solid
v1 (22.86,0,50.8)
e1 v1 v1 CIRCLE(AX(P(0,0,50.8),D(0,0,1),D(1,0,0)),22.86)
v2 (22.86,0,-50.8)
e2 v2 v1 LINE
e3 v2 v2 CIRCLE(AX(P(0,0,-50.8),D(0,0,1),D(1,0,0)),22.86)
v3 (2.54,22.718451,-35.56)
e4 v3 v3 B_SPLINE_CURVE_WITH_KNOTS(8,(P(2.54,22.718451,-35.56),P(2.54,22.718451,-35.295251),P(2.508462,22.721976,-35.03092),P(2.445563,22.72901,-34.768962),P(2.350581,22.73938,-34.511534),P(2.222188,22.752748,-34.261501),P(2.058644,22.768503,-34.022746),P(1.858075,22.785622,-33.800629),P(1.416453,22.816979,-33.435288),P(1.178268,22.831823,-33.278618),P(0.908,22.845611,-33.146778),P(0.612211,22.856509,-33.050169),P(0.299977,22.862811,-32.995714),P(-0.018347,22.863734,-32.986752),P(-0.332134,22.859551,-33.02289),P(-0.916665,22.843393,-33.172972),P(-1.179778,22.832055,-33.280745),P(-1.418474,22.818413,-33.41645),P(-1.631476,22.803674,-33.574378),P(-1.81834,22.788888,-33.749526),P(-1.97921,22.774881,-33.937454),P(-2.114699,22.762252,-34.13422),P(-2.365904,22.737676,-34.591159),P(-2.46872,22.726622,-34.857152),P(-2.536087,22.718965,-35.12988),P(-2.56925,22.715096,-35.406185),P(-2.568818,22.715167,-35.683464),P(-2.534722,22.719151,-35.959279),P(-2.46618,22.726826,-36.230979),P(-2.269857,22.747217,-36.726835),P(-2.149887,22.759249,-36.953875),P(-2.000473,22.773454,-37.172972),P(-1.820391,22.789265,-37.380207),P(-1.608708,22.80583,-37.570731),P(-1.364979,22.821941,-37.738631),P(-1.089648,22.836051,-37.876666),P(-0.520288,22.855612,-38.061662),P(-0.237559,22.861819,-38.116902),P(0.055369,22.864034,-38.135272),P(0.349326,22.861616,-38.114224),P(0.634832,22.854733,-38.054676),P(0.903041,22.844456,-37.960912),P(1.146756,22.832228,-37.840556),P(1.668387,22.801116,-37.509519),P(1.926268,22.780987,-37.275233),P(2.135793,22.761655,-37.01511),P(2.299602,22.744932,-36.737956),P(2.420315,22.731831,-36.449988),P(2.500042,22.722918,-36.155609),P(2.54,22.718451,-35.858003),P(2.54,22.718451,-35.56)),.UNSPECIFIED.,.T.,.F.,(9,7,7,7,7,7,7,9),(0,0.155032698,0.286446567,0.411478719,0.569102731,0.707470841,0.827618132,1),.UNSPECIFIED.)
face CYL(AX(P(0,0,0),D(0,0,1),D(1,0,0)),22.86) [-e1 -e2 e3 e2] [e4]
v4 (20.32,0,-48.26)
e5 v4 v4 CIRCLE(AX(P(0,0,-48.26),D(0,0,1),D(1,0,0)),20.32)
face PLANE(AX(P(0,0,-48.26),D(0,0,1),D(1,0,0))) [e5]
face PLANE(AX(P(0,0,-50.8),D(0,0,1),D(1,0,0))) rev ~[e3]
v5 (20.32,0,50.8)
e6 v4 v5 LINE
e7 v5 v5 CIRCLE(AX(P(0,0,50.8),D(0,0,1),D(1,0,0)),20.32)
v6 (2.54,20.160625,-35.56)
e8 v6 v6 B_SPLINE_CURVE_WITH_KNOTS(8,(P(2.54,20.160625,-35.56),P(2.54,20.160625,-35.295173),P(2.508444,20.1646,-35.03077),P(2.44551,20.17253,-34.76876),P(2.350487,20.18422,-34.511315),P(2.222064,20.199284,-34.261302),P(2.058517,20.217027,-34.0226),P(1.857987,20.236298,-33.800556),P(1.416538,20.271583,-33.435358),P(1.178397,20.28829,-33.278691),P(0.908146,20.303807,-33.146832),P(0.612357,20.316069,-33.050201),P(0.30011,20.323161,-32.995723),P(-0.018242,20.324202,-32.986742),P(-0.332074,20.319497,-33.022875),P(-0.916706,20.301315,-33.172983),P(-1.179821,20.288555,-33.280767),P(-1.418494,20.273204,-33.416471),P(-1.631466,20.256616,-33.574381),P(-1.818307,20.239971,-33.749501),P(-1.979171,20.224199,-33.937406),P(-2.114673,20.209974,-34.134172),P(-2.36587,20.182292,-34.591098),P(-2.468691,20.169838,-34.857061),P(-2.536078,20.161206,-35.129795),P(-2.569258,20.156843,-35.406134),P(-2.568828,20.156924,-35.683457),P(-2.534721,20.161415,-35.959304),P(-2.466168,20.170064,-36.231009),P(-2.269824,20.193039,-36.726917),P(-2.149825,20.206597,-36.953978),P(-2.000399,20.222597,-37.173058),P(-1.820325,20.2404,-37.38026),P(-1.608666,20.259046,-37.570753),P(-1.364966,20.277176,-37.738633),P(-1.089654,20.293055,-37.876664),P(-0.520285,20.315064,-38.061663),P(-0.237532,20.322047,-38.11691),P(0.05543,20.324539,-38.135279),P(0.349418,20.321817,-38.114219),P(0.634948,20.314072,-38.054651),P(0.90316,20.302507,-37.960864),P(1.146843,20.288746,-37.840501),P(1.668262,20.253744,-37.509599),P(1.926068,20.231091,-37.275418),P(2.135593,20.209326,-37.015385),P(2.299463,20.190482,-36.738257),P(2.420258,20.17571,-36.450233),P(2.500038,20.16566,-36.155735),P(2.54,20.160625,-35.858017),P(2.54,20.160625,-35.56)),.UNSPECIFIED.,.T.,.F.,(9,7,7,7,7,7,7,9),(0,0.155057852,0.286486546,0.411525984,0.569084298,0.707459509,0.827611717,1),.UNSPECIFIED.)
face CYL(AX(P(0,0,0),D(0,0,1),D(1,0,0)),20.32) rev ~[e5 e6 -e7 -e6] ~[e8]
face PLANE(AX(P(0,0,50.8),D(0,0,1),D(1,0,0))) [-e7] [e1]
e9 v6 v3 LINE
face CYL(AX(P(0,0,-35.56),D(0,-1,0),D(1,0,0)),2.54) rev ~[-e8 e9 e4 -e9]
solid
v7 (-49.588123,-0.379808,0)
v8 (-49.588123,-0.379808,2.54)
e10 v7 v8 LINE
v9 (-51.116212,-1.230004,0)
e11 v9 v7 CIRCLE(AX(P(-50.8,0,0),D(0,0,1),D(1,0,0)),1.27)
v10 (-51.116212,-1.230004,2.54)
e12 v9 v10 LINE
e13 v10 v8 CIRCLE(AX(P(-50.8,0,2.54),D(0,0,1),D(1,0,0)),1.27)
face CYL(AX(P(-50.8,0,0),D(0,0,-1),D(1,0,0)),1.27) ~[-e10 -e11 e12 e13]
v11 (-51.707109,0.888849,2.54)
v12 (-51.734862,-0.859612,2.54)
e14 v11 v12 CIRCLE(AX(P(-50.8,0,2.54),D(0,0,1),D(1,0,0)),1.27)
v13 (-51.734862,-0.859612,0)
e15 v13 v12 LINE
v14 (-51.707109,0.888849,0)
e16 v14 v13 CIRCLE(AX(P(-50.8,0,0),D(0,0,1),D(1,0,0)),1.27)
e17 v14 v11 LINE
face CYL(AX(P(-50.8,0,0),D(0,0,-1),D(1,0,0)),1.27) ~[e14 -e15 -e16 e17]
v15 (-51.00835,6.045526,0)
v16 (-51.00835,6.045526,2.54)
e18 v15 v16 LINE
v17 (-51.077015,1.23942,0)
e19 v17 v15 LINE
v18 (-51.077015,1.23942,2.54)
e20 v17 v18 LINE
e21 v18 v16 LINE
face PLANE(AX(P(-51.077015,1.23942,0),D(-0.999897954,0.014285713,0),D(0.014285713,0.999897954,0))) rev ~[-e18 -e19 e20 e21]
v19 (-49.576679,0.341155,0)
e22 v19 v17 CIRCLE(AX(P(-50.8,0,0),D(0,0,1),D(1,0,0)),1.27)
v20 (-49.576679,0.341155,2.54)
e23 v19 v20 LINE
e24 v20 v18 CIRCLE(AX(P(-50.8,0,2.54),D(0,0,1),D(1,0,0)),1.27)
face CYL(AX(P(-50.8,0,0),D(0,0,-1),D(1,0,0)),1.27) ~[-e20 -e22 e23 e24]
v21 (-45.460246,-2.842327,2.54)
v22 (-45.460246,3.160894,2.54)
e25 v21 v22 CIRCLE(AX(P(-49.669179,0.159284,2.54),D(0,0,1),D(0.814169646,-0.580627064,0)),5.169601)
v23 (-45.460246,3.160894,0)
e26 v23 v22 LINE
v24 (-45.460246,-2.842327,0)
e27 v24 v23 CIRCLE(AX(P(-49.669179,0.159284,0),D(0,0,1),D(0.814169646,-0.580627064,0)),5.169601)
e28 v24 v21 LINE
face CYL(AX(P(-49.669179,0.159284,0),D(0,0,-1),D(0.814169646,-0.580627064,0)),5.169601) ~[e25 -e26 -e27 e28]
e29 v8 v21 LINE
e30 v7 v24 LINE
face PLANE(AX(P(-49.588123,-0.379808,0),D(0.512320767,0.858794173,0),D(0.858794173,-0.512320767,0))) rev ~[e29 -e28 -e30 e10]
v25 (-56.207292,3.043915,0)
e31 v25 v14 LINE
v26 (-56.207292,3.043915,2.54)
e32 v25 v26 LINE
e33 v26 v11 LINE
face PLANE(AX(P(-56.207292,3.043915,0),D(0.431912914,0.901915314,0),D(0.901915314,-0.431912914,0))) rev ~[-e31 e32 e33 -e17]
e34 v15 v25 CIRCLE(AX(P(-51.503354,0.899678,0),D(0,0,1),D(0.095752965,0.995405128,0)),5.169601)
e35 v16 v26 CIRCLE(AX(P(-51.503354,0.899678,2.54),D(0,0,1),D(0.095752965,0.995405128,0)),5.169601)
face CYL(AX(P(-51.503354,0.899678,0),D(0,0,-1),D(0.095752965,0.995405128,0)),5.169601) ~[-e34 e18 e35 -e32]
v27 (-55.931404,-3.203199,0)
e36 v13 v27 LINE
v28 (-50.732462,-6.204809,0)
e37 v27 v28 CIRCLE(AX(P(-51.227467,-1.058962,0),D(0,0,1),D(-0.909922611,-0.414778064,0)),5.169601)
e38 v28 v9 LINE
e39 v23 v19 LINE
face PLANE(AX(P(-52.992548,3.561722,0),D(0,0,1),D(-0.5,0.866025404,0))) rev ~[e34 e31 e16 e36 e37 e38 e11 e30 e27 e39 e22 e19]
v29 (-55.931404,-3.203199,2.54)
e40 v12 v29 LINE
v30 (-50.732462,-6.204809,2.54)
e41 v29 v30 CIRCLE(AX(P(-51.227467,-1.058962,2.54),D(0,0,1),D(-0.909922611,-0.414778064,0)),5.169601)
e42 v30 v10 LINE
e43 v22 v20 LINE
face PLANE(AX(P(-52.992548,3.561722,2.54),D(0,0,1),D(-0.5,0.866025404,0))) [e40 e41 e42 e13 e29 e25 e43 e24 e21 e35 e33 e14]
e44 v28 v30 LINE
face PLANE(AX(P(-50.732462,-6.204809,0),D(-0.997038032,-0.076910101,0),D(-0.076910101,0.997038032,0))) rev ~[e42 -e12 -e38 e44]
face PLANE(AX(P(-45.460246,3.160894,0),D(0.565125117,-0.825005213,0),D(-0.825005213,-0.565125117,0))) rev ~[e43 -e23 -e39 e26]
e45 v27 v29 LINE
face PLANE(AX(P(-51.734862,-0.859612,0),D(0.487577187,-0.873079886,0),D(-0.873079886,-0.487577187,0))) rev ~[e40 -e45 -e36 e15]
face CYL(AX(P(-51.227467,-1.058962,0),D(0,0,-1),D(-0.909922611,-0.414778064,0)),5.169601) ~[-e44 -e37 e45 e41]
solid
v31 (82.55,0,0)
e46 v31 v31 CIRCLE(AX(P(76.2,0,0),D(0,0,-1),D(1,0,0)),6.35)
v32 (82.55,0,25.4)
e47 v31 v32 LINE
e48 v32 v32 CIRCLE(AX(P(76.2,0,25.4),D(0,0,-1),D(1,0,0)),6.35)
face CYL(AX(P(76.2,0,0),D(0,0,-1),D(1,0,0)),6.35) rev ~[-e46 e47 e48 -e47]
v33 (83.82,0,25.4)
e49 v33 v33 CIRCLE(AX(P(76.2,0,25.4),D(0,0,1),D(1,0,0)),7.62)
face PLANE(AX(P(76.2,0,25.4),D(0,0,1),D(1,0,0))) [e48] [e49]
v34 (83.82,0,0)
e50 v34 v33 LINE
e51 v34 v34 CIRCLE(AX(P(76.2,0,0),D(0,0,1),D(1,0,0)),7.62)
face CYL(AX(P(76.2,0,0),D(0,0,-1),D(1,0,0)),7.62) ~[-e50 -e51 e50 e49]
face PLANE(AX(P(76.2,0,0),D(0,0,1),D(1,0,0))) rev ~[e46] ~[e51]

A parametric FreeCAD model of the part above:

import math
import FreeCAD as App
import Part
import Sketcher

V = App.Vector
Q = App.Units.Quantity


def faces_at(feature, points):
    """Names of the faces that lie closest to the given points."""
    faces = feature.Shape.Faces
    near = lambda p: min(range(len(faces)), key=lambda i: faces[i].distToShape(Part.Vertex(*p))[0])
    return sorted({f"Face{near(p) + 1}" for p in points})

doc = App.newDocument("Part")
body = doc.addObject("PartDesign::Body", "Body")

# Sketch on XY plane
sketch1 = body.newObject("Sketcher::SketchObject", "Sketch")
sketch1.AttachmentSupport = (doc.getObject("XY_Plane"), [""])
sketch1.MapMode = "FlatFace"
sketch1.addGeometry(Part.Circle(V(0, 0, 0), V(0, 0, 1), 22.86), False)
sketch1.addConstraint([
    Sketcher.Constraint("Coincident", 0, 3, -1, 1),
    Sketcher.Constraint("Diameter", 0, Q("1.8 in")),
])
pad1 = body.newObject("PartDesign::Pad", "Pad")
pad1.Profile = sketch1
pad1.Length = Q("4 in")
pad1.Midplane = True
doc.recompute()

thickness = body.newObject("PartDesign::Thickness", "Thickness")
thickness.Base = (pad1, faces_at(pad1, [(0, 0, 50.8)]))
thickness.Value = Q("0.1 in")
thickness.Reversed = True
thickness.Join = "Arc"

# Sketch on XZ plane
sketch2 = body.newObject("Sketcher::SketchObject", "Sketch001")
sketch2.AttachmentSupport = (doc.getObject("XZ_Plane"), [""])
sketch2.MapMode = "FlatFace"
sketch2.addGeometry(Part.Circle(V(0, -35.56, 0), V(0, 0, 1), 2.54), False)
sketch2.addConstraint([
    Sketcher.Constraint("PointOnObject", 0, 3, -2),
    Sketcher.Constraint("Diameter", 0, Q("0.2 in")),
    Sketcher.Constraint("DistanceY", 0, 3, -1, 1, Q("1.4 in")),
])
pocket1 = body.newObject("PartDesign::Pocket", "Pocket")
pocket1.Profile = sketch2
pocket1.Length = 22.94505
body2 = doc.addObject("PartDesign::Body", "Body001")

# Sketch on XY plane
sketch3 = body2.newObject("Sketcher::SketchObject", "Sketch002")
sketch3.AttachmentSupport = (doc.getObject("XY_Plane001"), [""])
sketch3.MapMode = "FlatFace"
sketch3.addGeometry(Part.Circle(V(76.2, 0, 0), V(0, 0, 1), 7.62), False)
sketch3.addConstraint([
    Sketcher.Constraint("PointOnObject", 0, 3, -1),
    Sketcher.Constraint("Diameter", 0, Q("0.6 in")),
    Sketcher.Constraint("DistanceX", -1, 1, 0, 3, Q("3 in")),
])
pad2 = body2.newObject("PartDesign::Pad", "Pad001")
pad2.Profile = sketch3
pad2.Length = Q("1 in")

# Sketch on XY plane
sketch4 = body2.newObject("Sketcher::SketchObject", "Sketch003")
sketch4.AttachmentSupport = (doc.getObject("XY_Plane001"), [""])
sketch4.MapMode = "FlatFace"
sketch4.addGeometry(Part.Circle(V(76.2, 0, 0), V(0, 0, 1), 6.35), False)
sketch4.addConstraint([
    Sketcher.Constraint("PointOnObject", 0, 3, -1),
    Sketcher.Constraint("Diameter", 0, Q("0.5 in")),
    Sketcher.Constraint("DistanceX", -1, 1, 0, 3, Q("3 in")),
])
pocket2 = body2.newObject("PartDesign::Pocket", "Pocket001")
pocket2.Profile = sketch4
pocket2.Length = Q("1 in")
pocket2.Reversed = True
body3 = doc.addObject("PartDesign::Body", "Body002")

# Sketch on XY plane
sketch5 = body3.newObject("Sketcher::SketchObject", "Sketch004")
sketch5.AttachmentSupport = (doc.getObject("XY_Plane002"), [""])
sketch5.MapMode = "FlatFace"
sketch5.addGeometry(Part.Circle(V(-50.8, 0, 0), V(0, 0, 1), 1.27), False)
sketch5.addConstraint([
    Sketcher.Constraint("PointOnObject", 0, 3, -1),
    Sketcher.Constraint("Diameter", 0, Q("0.1 in")),
    Sketcher.Constraint("DistanceX", 0, 3, -1, 1, Q("2 in")),
])
pad3 = body3.newObject("PartDesign::Pad", "Pad002")
pad3.Profile = sketch5
pad3.Length = Q("0.1 in")

# Sketch on XY plane
sketch6 = body3.newObject("Sketcher::SketchObject", "Sketch005")
sketch6.AttachmentSupport = (doc.getObject("XY_Plane002"), [""])
sketch6.MapMode = "FlatFace"
sketch6.addGeometry([
    Part.ArcOfCircle(Part.Circle(V(-50.8, 0, 0), V(0, 0, 1), 1.27), math.radians(0), math.radians(15.58251)),  # 0
    Part.ArcOfCircle(Part.Circle(V(-50.8, 0, 0), V(0, 0, 1), 1.27), math.radians(-17.401233), math.radians(0)),  # 1
    Part.LineSegment(V(-49.588123, -0.379808, 0), V(-45.460246, -2.842327, 0)),  # 2
    Part.ArcOfCircle(Part.Circle(V(-49.669179, 0.159284, 0), V(0, 0, 1), 5.169601), math.radians(-35.494659), math.radians(35.494659)),  # 3
    Part.LineSegment(V(-45.460246, 3.160894, 0), V(-49.576679, 0.341155, 0)),  # 4
], False)
sketch6.addConstraint([
    Sketcher.Constraint("Tangent", 0, 1, 1, 2),
    Sketcher.Constraint("Coincident", 1, 1, 2, 1),
    Sketcher.Constraint("Coincident", 2, 2, 3, 1),
    Sketcher.Constraint("Coincident", 3, 2, 4, 1),
    Sketcher.Constraint("Coincident", 4, 2, 0, 2),
    Sketcher.Constraint("Equal", 0, 1),
    Sketcher.Constraint("PointOnObject", 0, 3, -1),
    Sketcher.Constraint("PointOnObject", 0, 1, -1),
    Sketcher.Constraint("Vertical", 2, 2, 3, 2),
    Sketcher.Constraint("Radius", 0, Q("0.05 in")),
    Sketcher.Constraint("DistanceX", 0, 3, -1, 1, Q("2 in")),
    Sketcher.Constraint("Radius", 3, 5.169601),
    Sketcher.Constraint("DistanceX", 3, 3, 4, 2, 0.0925),
    Sketcher.Constraint("DistanceX", 3, 3, -1, 1, 49.669179),
    Sketcher.Constraint("DistanceY", 1, 1, 3, 3, 0.539092),
    Sketcher.Constraint("DistanceY", 2, 2, 1, 1, 2.462519),
    Sketcher.Constraint("DistanceY", 3, 3, 4, 2, 0.181871),
])
pad4 = body3.newObject("PartDesign::Pad", "Pad003")
pad4.Profile = sketch6
pad4.Length = Q("0.1 in")
body4 = doc.addObject("PartDesign::Body", "Body003")
doc.recompute()

body4.BaseFeature = body3
doc.recompute()

body5 = doc.addObject("PartDesign::Body", "Body004")
body5.BaseFeature = body3
body5.Placement = App.Placement(V(-76.2, -43.994091, 0), App.Rotation(V(0, 0, -1), 120))
boolean = body4.newObject("PartDesign::Boolean", "Boolean")
boolean.Type = "Fuse"
boolean.addObjects([body5])
doc.recompute()

body3.Placement = App.Placement(V(-76.2, 43.994091, 0), App.Rotation(V(0, 0, -1), 240))
boolean2 = body4.newObject("PartDesign::Boolean", "Boolean001")
boolean2.Type = "Fuse"
boolean2.addObjects([body3])

doc.recompute()
